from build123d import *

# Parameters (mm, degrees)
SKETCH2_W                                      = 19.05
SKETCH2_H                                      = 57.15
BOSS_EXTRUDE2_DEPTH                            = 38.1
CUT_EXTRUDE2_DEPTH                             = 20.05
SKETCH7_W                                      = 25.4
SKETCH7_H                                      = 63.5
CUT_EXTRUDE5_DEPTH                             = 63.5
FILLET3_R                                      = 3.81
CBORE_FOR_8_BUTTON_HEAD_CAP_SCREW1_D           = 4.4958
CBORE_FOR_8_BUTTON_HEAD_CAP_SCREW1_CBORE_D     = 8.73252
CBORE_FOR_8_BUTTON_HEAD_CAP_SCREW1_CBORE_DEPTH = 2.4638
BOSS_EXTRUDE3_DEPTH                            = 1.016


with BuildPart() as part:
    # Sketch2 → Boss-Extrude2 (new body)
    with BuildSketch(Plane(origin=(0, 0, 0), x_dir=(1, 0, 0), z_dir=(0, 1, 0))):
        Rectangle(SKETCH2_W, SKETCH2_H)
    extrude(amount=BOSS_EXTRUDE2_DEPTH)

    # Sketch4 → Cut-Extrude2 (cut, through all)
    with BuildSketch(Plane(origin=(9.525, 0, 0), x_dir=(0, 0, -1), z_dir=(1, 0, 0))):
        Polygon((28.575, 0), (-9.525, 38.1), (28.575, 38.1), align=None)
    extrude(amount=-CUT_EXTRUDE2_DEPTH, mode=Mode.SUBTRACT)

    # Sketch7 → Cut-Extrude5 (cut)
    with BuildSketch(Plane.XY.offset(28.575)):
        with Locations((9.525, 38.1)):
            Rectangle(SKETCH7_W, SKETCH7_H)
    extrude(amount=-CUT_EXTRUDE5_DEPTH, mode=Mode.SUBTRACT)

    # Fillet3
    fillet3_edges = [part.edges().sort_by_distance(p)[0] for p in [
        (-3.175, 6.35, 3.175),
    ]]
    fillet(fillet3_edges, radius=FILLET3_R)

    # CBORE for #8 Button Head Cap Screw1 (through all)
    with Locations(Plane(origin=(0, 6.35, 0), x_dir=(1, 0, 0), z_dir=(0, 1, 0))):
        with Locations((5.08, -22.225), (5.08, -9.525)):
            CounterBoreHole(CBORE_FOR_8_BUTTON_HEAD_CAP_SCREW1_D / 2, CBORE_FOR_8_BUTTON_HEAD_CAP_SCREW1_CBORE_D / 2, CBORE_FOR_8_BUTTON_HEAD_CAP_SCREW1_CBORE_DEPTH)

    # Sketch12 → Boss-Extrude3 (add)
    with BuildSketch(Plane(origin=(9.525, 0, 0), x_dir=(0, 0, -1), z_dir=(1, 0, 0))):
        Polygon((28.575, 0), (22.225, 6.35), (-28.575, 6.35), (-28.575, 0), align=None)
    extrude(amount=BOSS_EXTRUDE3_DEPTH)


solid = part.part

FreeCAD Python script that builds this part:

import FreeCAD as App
import Part
import Sketcher
Q = App.Units.Quantity


def edges_at(feature, points):
    """Names of the edges that pass closest to the given points."""
    edges = feature.Shape.Edges
    near = lambda p: min(range(len(edges)), key=lambda i: edges[i].distToShape(Part.Vertex(*p))[0])
    return sorted({f"Edge{near(p) + 1}" for p in points})

doc = App.newDocument("Part")
body = doc.addObject("PartDesign::Body", "Body")

# Sketch on XZ plane
sketch1 = body.newObject("Sketcher::SketchObject", "Sketch")
sketch1.AttachmentSupport = (doc.getObject("XZ_Plane"), [""])
sketch1.MapMode = "FlatFace"
sketch1.addGeometry([
    Part.LineSegment(App.Vector(-9.525, -28.575, 0), App.Vector(-9.525, 28.575, 0)),
    Part.LineSegment(App.Vector(-9.525, 28.575, 0), App.Vector(9.525, 28.575, 0)),
    Part.LineSegment(App.Vector(9.525, 28.575, 0), App.Vector(9.525, -28.575, 0)),
    Part.LineSegment(App.Vector(9.525, -28.575, 0), App.Vector(-9.525, -28.575, 0)),
], False)
sketch1.addConstraint([
    Sketcher.Constraint("Coincident", 0, 2, 1, 1),
    Sketcher.Constraint("Coincident", 1, 2, 2, 1),
    Sketcher.Constraint("Coincident", 2, 2, 3, 1),
    Sketcher.Constraint("Coincident", 3, 2, 0, 1),
    Sketcher.Constraint("Vertical", 0),
    Sketcher.Constraint("Horizontal", 1),
    Sketcher.Constraint("Vertical", 2),
    Sketcher.Constraint("Horizontal", 3),
    Sketcher.Constraint("Symmetric", 0, 2, 2, 2, -1, 1),
    Sketcher.Constraint("DistanceX", 1, 1, 1, 2, Q("0.75 in")),
    Sketcher.Constraint("DistanceY", 0, 1, 0, 2, Q("2.25 in")),
])
pad1 = body.newObject("PartDesign::Pad", "Pad")
pad1.Profile = sketch1
pad1.Length = Q("1.5 in")
pad1.Reversed = True

# Sketch on YZ plane
sketch2 = body.newObject("Sketcher::SketchObject", "Sketch001")
sketch2.AttachmentSupport = (doc.getObject("YZ_Plane"), [""])
sketch2.MapMode = "FlatFace"
sketch2.AttachmentOffset = App.Placement(App.Vector(0, 0, 0.375 * 25.4), App.Rotation())
sketch2.addGeometry([
    Part.LineSegment(App.Vector(38.1, 9.525, 0), App.Vector(0, -28.575, 0)),
    Part.LineSegment(App.Vector(0, -28.575, 0), App.Vector(38.1, -28.575, 0)),
    Part.LineSegment(App.Vector(38.1, -28.575, 0), App.Vector(38.1, 9.525, 0)),
], False)
sketch2.addConstraint([
    Sketcher.Constraint("Coincident", 0, 2, 1, 1),
    Sketcher.Constraint("Coincident", 1, 2, 2, 1),
    Sketcher.Constraint("Coincident", 2, 2, 0, 1),
    Sketcher.Constraint("Horizontal", 1),
    Sketcher.Constraint("Vertical", 2),
    Sketcher.Constraint("PointOnObject", 0, 2, -2),
    Sketcher.Constraint("Equal", 1, 2),
    Sketcher.Constraint("DistanceX", 1, 1, 1, 2, Q("1.5 in")),
    Sketcher.Constraint("DistanceY", 0, 2, -1, 1, Q("1.125 in")),
])
pocket1 = body.newObject("PartDesign::Pocket", "Pocket")
pocket1.Profile = sketch2
pocket1.Type = "ThroughAll"

# Sketch on XY plane
sketch3 = body.newObject("Sketcher::SketchObject", "Sketch002")
sketch3.AttachmentSupport = (doc.getObject("XY_Plane"), [""])
sketch3.MapMode = "FlatFace"
sketch3.AttachmentOffset = App.Placement(App.Vector(0, 0, 1.125 * 25.4), App.Rotation())
sketch3.addGeometry([
    Part.LineSegment(App.Vector(-3.175, 69.85, 0), App.Vector(-3.175, 6.35, 0)),
    Part.LineSegment(App.Vector(-3.175, 6.35, 0), App.Vector(22.225, 6.35, 0)),
    Part.LineSegment(App.Vector(22.225, 6.35, 0), App.Vector(22.225, 69.85, 0)),
    Part.LineSegment(App.Vector(22.225, 69.85, 0), App.Vector(-3.175, 69.85, 0)),
], False)
sketch3.addConstraint([
    Sketcher.Constraint("Coincident", 0, 2, 1, 1),
    Sketcher.Constraint("Coincident", 1, 2, 2, 1),
    Sketcher.Constraint("Coincident", 2, 2, 3, 1),
    Sketcher.Constraint("Coincident", 3, 2, 0, 1),
    Sketcher.Constraint("Vertical", 0),
    Sketcher.Constraint("Horizontal", 1),
    Sketcher.Constraint("Vertical", 2),
    Sketcher.Constraint("Horizontal", 3),
    Sketcher.Constraint("DistanceX", 1, 1, 1, 2, Q("1 in")),
    Sketcher.Constraint("DistanceY", 0, 2, 0, 1, Q("2.5 in")),
    Sketcher.Constraint("DistanceY", -1, 1, 0, 2, Q("0.25 in")),
    Sketcher.Constraint("DistanceX", 0, 2, -1, 1, Q("0.125 in")),
])
pocket2 = body.newObject("PartDesign::Pocket", "Pocket001")
pocket2.Profile = sketch3
pocket2.Length = Q("2.5 in")
doc.recompute()

fillet = body.newObject("PartDesign::Fillet", "Fillet")
fillet.Base = (pocket2, edges_at(pocket2, [(-3.175, 6.35, 3.175)]))
fillet.Radius = Q("0.15 in")

# Sketch on XZ plane
sketch4 = body.newObject("Sketcher::SketchObject", "Sketch003")
sketch4.AttachmentSupport = (doc.getObject("XZ_Plane"), [""])
sketch4.MapMode = "FlatFace"
sketch4.AttachmentOffset = App.Placement(App.Vector(0, 0, -0.25 * 25.4), App.Rotation())
sketch4.addGeometry([
    Part.Circle(App.Vector(5.08, 22.225, 0), App.Vector(0, 0, 1), 2.2479),
    Part.Circle(App.Vector(5.08, 9.525, 0), App.Vector(0, 0, 1), 2.2479),
], False)
sketch4.addConstraint([
    Sketcher.Constraint("Equal", 0, 1),
    Sketcher.Constraint("Vertical", 0, 3, 1, 3),
    Sketcher.Constraint("Diameter", 0, Q("0.177 in")),
    Sketcher.Constraint("DistanceX", -1, 1, 0, 3, Q("0.2 in")),
    Sketcher.Constraint("DistanceY", 1, 3, 0, 3, Q("0.5 in")),
    Sketcher.Constraint("DistanceY", -1, 1, 0, 3, Q("0.875 in")),
])
doc.recompute()
hole = body.newObject("PartDesign::Hole", "Hole")
hole.Profile = sketch4
hole.ThreadType = "None"
hole.Diameter = Q("0.177 in")
hole.DepthType = "ThroughAll"
hole.HoleCutType = "Counterbore"
hole.HoleCutDiameter = Q("0.3438 in")
hole.HoleCutDepth = Q("0.097 in")
hole.Reversed = True

# Sketch on YZ plane
sketch5 = body.newObject("Sketcher::SketchObject", "Sketch004")
sketch5.AttachmentSupport = (doc.getObject("YZ_Plane"), [""])
sketch5.MapMode = "FlatFace"
sketch5.AttachmentOffset = App.Placement(App.Vector(0, 0, 0.375 * 25.4), App.Rotation())
sketch5.addGeometry([
    Part.LineSegment(App.Vector(0, -28.575, 0), App.Vector(6.35, -22.225, 0)),
    Part.LineSegment(App.Vector(6.35, -22.225, 0), App.Vector(6.35, 28.575, 0)),
    Part.LineSegment(App.Vector(6.35, 28.575, 0), App.Vector(0, 28.575, 0)),
    Part.LineSegment(App.Vector(0, 28.575, 0), App.Vector(0, -28.575, 0)),
], False)
sketch5.addConstraint([
    Sketcher.Constraint("Coincident", 0, 2, 1, 1),
    Sketcher.Constraint("Coincident", 1, 2, 2, 1),
    Sketcher.Constraint("Coincident", 2, 2, 3, 1),
    Sketcher.Constraint("Coincident", 3, 2, 0, 1),
    Sketcher.Constraint("Vertical", 1),
    Sketcher.Constraint("Horizontal", 2),
    Sketcher.Constraint("Vertical", 3),
    Sketcher.Constraint("Symmetric", 2, 2, 3, 2, -1, 1),
    Sketcher.Constraint("DistanceY", 1, 1, 1, 2, Q("2 in")),
    Sketcher.Constraint("Angle", 0, Q("45 deg")),
    Sketcher.Constraint("DistanceX", 2, 2, 2, 1, Q("0.25 in")),
])
pad2 = body.newObject("PartDesign::Pad", "Pad001")
pad2.Profile = sketch5
pad2.Length = Q("0.04 in")

doc.recompute()
